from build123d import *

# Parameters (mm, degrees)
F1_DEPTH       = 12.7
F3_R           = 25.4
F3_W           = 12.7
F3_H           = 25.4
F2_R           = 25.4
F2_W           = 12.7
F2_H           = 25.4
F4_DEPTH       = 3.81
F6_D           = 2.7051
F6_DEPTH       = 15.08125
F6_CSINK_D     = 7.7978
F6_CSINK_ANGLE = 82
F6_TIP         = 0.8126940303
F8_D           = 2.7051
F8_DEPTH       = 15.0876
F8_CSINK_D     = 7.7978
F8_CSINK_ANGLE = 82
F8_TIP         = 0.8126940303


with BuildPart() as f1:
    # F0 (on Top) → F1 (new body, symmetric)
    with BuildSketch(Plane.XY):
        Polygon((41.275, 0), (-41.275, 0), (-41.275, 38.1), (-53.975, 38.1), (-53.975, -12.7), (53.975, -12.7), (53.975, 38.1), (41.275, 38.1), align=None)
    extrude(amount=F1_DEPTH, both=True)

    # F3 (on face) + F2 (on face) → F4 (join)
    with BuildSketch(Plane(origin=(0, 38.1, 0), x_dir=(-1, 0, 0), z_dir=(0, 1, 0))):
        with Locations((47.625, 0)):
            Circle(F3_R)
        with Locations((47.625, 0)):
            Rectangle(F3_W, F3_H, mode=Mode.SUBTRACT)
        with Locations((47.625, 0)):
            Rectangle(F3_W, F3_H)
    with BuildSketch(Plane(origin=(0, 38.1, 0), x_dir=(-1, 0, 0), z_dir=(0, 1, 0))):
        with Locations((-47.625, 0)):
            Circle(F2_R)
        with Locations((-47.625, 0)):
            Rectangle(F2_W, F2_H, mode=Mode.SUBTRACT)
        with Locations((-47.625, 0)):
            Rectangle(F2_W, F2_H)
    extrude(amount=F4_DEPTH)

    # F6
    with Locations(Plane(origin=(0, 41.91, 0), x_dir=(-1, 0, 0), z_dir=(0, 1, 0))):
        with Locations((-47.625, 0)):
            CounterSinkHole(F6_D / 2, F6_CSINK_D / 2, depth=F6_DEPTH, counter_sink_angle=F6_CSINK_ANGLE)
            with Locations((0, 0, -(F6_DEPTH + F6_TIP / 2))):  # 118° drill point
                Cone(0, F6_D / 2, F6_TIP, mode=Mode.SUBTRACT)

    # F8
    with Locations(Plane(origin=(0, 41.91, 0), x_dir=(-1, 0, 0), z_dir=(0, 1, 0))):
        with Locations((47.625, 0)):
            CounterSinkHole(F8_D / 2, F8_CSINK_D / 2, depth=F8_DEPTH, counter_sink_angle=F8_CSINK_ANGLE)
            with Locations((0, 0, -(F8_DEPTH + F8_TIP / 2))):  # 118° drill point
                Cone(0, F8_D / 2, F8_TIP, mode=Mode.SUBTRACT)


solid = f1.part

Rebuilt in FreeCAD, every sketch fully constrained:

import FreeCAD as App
import Part
import Sketcher
Q = App.Units.Quantity

doc = App.newDocument("Part")
body = doc.addObject("PartDesign::Body", "Body")

sketch1 = doc.addObject("Sketcher::SketchObject", "Sketch")
body.addObject(sketch1)
sketch1.AttachmentSupport = (doc.XY_Plane, [""])
sketch1.MapMode = "FlatFace"
sketch1.addGeometry([
    Part.LineSegment(App.Vector(41, 0, 0), App.Vector(-41, 0, 0)),
    Part.LineSegment(App.Vector(-41, 0, 0), App.Vector(-41, 38, 0)),
    Part.LineSegment(App.Vector(-41, 38, 0), App.Vector(-54, 38, 0)),
    Part.LineSegment(App.Vector(-54, 38, 0), App.Vector(-54, -13, 0)),
    Part.LineSegment(App.Vector(-54, -13, 0), App.Vector(54, -13, 0)),
    Part.LineSegment(App.Vector(54, -13, 0), App.Vector(54, 38, 0)),
    Part.LineSegment(App.Vector(54, 38, 0), App.Vector(41, 38, 0)),
    Part.LineSegment(App.Vector(41, 38, 0), App.Vector(41, 0, 0)),
], False)
sketch1.addConstraint([
    Sketcher.Constraint("Coincident", 0, 2, 1, 1),
    Sketcher.Constraint("Coincident", 1, 2, 2, 1),
    Sketcher.Constraint("Coincident", 2, 2, 3, 1),
    Sketcher.Constraint("Coincident", 3, 2, 4, 1),
    Sketcher.Constraint("Coincident", 4, 2, 5, 1),
    Sketcher.Constraint("Coincident", 5, 2, 6, 1),
    Sketcher.Constraint("Coincident", 6, 2, 7, 1),
    Sketcher.Constraint("Coincident", 7, 2, 0, 1),
    Sketcher.Constraint("Horizontal", 0),
    Sketcher.Constraint("Vertical", 1),
    Sketcher.Constraint("Horizontal", 2),
    Sketcher.Constraint("Vertical", 3),
    Sketcher.Constraint("Horizontal", 4),
    Sketcher.Constraint("Vertical", 5),
    Sketcher.Constraint("Horizontal", 6),
    Sketcher.Constraint("Vertical", 7),
    Sketcher.Constraint("Symmetric", 0, 2, 7, 2, -1, 1),
    Sketcher.Constraint("Symmetric", 2, 2, 5, 2, -2),
    Sketcher.Constraint("DistanceY", 3, 2, 3, 1, Q("2 in")),
    Sketcher.Constraint("DistanceX", 2, 2, 2, 1, Q("0.5 in")),
    Sketcher.Constraint("DistanceY", 1, 1, 1, 2, Q("1.5 in")),
    Sketcher.Constraint("DistanceX", 0, 2, 0, 1, Q("3.25 in")),
])
pad1 = doc.addObject("PartDesign::Pad", "Pad")
body.addObject(pad1)
pad1.Profile = sketch1
pad1.Length = Q("1 in")
pad1.Midplane = True

sketch2 = doc.addObject("Sketcher::SketchObject", "Sketch001")
body.addObject(sketch2)
sketch2.AttachmentSupport = (doc.XZ_Plane, [""])
sketch2.MapMode = "FlatFace"
sketch2.AttachmentOffset = App.Placement(App.Vector(0, 0, -1.5 * 25.4), App.Rotation())
sketch2.addGeometry([
    Part.Circle(App.Vector(-48, 0, 0), App.Vector(0, 0, 1), 25),
    Part.Circle(App.Vector(48, 0, 0), App.Vector(0, 0, 1), 25),
], False)
sketch2.addConstraint([
    Sketcher.Constraint("Equal", 0, 1),
    Sketcher.Constraint("Symmetric", 0, 3, 1, 3, -1, 1),
    Sketcher.Constraint("PointOnObject", 0, 3, -1),
    Sketcher.Constraint("Diameter", 0, Q("2 in")),
    Sketcher.Constraint("DistanceX", 0, 3, 1, 3, Q("3.75 in")),
])
pad2 = doc.addObject("PartDesign::Pad", "Pad001")
body.addObject(pad2)
pad2.Profile = sketch2
pad2.Length = Q("0.15 in")
pad2.Reversed = True

sketch3 = doc.addObject("Sketcher::SketchObject", "Sketch002")
body.addObject(sketch3)
sketch3.AttachmentSupport = (doc.XZ_Plane, [""])
sketch3.MapMode = "FlatFace"
sketch3.AttachmentOffset = App.Placement(App.Vector(0, 0, -1.65 * 25.4), App.Rotation())
sketch3.addGeometry(Part.Circle(App.Vector(47.6, 0, 0), App.Vector(0, 0, 1), 1.4), False)
sketch3.addConstraint([
    Sketcher.Constraint("PointOnObject", 0, 3, -1),
    Sketcher.Constraint("Diameter", 0, Q("0.1065 in")),
    Sketcher.Constraint("DistanceX", -1, 1, 0, 3, Q("1.875 in")),
])
doc.recompute()
hole = doc.addObject("PartDesign::Hole", "Hole")
body.addObject(hole)
hole.Profile = sketch3
hole.ThreadType = "None"
hole.Diameter = Q("0.1065 in")
hole.DepthType = "Dimension"
hole.Depth = Q("0.59375 in")
hole.DrillPoint = "Angled"
hole.DrillPointAngle = 118
hole.HoleCutType = "Countersink"
hole.HoleCutDiameter = Q("0.307 in")
hole.HoleCutCountersinkAngle = 82
hole.Reversed = True

sketch4 = doc.addObject("Sketcher::SketchObject", "Sketch003")
body.addObject(sketch4)
sketch4.AttachmentSupport = (doc.XZ_Plane, [""])
sketch4.MapMode = "FlatFace"
sketch4.AttachmentOffset = App.Placement(App.Vector(0, 0, -1.65 * 25.4), App.Rotation())
sketch4.addGeometry(Part.Circle(App.Vector(-47.6, 0, 0), App.Vector(0, 0, 1), 1.4), False)
sketch4.addConstraint([
    Sketcher.Constraint("PointOnObject", 0, 3, -1),
    Sketcher.Constraint("Diameter", 0, Q("0.1065 in")),
    Sketcher.Constraint("DistanceX", 0, 3, -1, 1, Q("1.875 in")),
])
doc.recompute()
hole2 = doc.addObject("PartDesign::Hole", "Hole001")
body.addObject(hole2)
hole2.Profile = sketch4
hole2.ThreadType = "None"
hole2.Diameter = Q("0.1065 in")
hole2.DepthType = "Dimension"
hole2.Depth = Q("0.594 in")
hole2.DrillPoint = "Angled"
hole2.DrillPointAngle = 118
hole2.HoleCutType = "Countersink"
hole2.HoleCutDiameter = Q("0.307 in")
hole2.HoleCutCountersinkAngle = 82
hole2.Reversed = True

doc.recompute()
